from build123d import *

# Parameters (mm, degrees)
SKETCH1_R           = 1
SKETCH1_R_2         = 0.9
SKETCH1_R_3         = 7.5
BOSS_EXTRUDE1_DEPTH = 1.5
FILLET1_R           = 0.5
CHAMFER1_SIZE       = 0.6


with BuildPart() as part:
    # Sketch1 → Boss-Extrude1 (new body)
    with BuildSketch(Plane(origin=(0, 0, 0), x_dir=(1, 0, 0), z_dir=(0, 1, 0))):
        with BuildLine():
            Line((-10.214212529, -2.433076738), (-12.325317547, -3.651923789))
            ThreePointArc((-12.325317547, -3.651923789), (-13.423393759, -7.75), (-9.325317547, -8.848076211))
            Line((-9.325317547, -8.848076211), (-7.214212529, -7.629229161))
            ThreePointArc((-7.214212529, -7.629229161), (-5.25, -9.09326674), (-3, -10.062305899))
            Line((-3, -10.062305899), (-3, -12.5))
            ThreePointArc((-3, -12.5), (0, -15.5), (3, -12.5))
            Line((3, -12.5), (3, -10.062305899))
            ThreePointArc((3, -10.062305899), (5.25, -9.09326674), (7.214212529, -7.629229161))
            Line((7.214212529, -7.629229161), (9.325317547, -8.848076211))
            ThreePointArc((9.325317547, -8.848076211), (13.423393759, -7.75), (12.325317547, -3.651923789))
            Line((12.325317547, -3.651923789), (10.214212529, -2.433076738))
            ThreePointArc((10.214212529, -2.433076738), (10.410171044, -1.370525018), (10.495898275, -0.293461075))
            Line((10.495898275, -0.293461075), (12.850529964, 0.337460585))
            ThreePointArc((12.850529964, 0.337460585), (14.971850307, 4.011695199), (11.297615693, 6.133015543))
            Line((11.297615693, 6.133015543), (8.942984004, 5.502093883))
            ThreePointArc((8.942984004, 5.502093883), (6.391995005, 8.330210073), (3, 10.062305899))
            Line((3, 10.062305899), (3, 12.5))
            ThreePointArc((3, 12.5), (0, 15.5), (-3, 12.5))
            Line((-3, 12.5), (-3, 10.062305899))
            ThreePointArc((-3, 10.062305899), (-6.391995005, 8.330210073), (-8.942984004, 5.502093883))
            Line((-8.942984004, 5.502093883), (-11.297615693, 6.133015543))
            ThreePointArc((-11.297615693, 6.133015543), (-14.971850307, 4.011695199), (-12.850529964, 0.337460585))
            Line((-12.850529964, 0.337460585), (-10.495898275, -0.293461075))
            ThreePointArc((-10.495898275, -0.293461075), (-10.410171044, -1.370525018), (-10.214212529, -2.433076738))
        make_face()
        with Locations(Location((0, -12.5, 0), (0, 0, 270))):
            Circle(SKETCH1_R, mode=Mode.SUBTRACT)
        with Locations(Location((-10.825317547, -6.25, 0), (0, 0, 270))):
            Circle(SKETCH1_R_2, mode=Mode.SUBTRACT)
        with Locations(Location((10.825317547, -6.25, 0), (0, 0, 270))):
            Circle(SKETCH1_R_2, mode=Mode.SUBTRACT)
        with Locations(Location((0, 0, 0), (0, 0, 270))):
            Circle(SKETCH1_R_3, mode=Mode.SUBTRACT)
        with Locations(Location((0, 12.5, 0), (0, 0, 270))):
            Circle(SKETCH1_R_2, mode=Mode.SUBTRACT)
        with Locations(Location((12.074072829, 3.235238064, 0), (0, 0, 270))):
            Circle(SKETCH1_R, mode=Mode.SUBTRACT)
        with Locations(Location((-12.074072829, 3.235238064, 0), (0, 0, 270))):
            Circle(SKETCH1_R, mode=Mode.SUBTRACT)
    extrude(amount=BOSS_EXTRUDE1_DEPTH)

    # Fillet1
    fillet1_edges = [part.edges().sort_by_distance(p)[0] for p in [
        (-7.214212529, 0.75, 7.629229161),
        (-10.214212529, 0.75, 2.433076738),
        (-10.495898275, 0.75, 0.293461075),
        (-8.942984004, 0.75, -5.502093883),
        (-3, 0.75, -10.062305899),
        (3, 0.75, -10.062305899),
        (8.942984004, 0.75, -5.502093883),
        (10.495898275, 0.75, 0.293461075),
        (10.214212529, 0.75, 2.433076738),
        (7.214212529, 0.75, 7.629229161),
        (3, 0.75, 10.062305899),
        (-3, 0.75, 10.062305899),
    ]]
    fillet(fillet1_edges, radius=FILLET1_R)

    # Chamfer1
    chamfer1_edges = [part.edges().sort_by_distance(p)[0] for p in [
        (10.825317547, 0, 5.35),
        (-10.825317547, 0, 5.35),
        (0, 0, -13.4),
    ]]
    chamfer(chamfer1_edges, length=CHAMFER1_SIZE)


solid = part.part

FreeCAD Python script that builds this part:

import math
import FreeCAD as App
import Part
import Sketcher

V = App.Vector
Q = App.Units.Quantity


def edges_at(feature, points):
    """Names of the edges that pass closest to the given points."""
    edges = feature.Shape.Edges
    near = lambda p: min(range(len(edges)), key=lambda i: edges[i].distToShape(Part.Vertex(*p))[0])
    return sorted({f"Edge{near(p) + 1}" for p in points})

doc = App.newDocument("Part")
params = doc.addObject("Spreadsheet::Sheet", "Params")
for row, (alias, value) in enumerate([
    ("sketch1_diameter", "2 mm"),
    ("sketch1_diameter2", "15 mm"),
    ("sketch1_radius", "3 mm"),
    ("sketch1_diameter3", "1.8 mm"),
    ("sketch1_radius2", "10.5 mm"),
    ("pad1_length", "1.5 mm"),
    ("fillet_radius", "0.5 mm"),
    ("chamfer_size", "0.6 mm"),
], start=1):
    params.set(f"A{row}", alias)
    params.set(f"B{row}", "=" + value)
    params.setAlias(f"B{row}", alias)

body = doc.addObject("PartDesign::Body", "Body")

# Sketch on XZ plane
sketch1 = body.newObject("Sketcher::SketchObject", "Sketch")
sketch1.AttachmentSupport = (doc.getObject("XZ_Plane"), [""])
sketch1.MapMode = "FlatFace"
sketch1.addGeometry([
    Part.LineSegment(V(-10.214213, 2.433077, 0), V(-12.325318, 3.651924, 0)),  # 0
    Part.ArcOfCircle(Part.Circle(V(-10.825318, 6.25, 0), V(0, 0, 1), 3), math.radians(60), math.radians(240)),  # 1
    Part.LineSegment(V(-9.325318, 8.848076, 0), V(-7.214213, 7.629229, 0)),  # 2
    Part.ArcOfCircle(Part.Circle(V(0, 0, 0), V(0, 0, 1), 10.5), math.radians(106.60155), math.radians(133.39845)),  # 3
    Part.LineSegment(V(-3, 10.062306, 0), V(-3, 12.5, 0)),  # 4
    Part.ArcOfCircle(Part.Circle(V(0, 12.5, 0), V(0, 0, 1), 3), math.radians(0), math.radians(180)),  # 5
    Part.LineSegment(V(3, 12.5, 0), V(3, 10.062306, 0)),  # 6
    Part.ArcOfCircle(Part.Circle(V(0, 0, 0), V(0, 0, 1), 10.5), math.radians(46.60155), math.radians(73.39845)),  # 7
    Part.LineSegment(V(7.214213, 7.629229, 0), V(9.325318, 8.848076, 0)),  # 8
    Part.ArcOfCircle(Part.Circle(V(10.825318, 6.25, 0), V(0, 0, 1), 3), math.radians(-60), math.radians(120)),  # 9
    Part.LineSegment(V(12.325318, 3.651924, 0), V(10.214213, 2.433077, 0)),  # 10
    Part.ArcOfCircle(Part.Circle(V(0, 0, 0), V(0, 0, 1), 10.5), math.radians(1.60155), math.radians(13.39845)),  # 11
    Part.LineSegment(V(10.495898, 0.293461, 0), V(12.85053, -0.337461, 0)),  # 12
    Part.ArcOfCircle(Part.Circle(V(12.074073, -3.235238, 0), V(0, 0, 1), 3), math.radians(-105), math.radians(75)),  # 13
    Part.LineSegment(V(11.297616, -6.133016, 0), V(8.942984, -5.502094, 0)),  # 14
    Part.ArcOfCircle(Part.Circle(V(0, 0, 0), V(0, 0, 1), 10.5), math.radians(-73.39845), math.radians(-31.60155)),  # 15
    Part.LineSegment(V(3, -10.062306, 0), V(3, -12.5, 0)),  # 16
    Part.ArcOfCircle(Part.Circle(V(0, -12.5, 0), V(0, 0, 1), 3), math.radians(180), math.radians(360)),  # 17
    Part.LineSegment(V(-3, -12.5, 0), V(-3, -10.062306, 0)),  # 18
    Part.ArcOfCircle(Part.Circle(V(0, 0, 0), V(0, 0, 1), 10.5), math.radians(-148.39845), math.radians(-106.60155)),  # 19
    Part.LineSegment(V(-8.942984, -5.502094, 0), V(-11.297616, -6.133016, 0)),  # 20
    Part.ArcOfCircle(Part.Circle(V(-12.074073, -3.235238, 0), V(0, 0, 1), 3), math.radians(105), math.radians(285)),  # 21
    Part.LineSegment(V(-12.85053, -0.337461, 0), V(-10.495898, 0.293461, 0)),  # 22
    Part.ArcOfCircle(Part.Circle(V(0, 0, 0), V(0, 0, 1), 10.5), math.radians(166.60155), math.radians(178.39845)),  # 23
    Part.Circle(V(-10.825318, 6.25, 0), V(0, 0, 1), 0.9),  # 24
    Part.Circle(V(0, 12.5, 0), V(0, 0, 1), 1),  # 25
    Part.Circle(V(10.825318, 6.25, 0), V(0, 0, 1), 0.9),  # 26
    Part.Circle(V(-12.074073, -3.235238, 0), V(0, 0, 1), 1),  # 27
    Part.Circle(V(0, 0, 0), V(0, 0, 1), 7.5),  # 28
    Part.Circle(V(12.074073, -3.235238, 0), V(0, 0, 1), 1),  # 29
    Part.Circle(V(0, -12.5, 0), V(0, 0, 1), 0.9),  # 30
], False)
sketch1.addConstraint([
    Sketcher.Constraint("Tangent", 0, 2, 1, 2),
    Sketcher.Constraint("Tangent", 1, 1, 2, 1),
    Sketcher.Constraint("Coincident", 2, 2, 3, 2),
    Sketcher.Constraint("Coincident", 3, 1, 4, 1),
    Sketcher.Constraint("Tangent", 4, 2, 5, 2),
    Sketcher.Constraint("Tangent", 5, 1, 6, 1),
    Sketcher.Constraint("Coincident", 6, 2, 7, 2),
    Sketcher.Constraint("Coincident", 7, 1, 8, 1),
    Sketcher.Constraint("Tangent", 8, 2, 9, 2),
    Sketcher.Constraint("Tangent", 9, 1, 10, 1),
    Sketcher.Constraint("Coincident", 10, 2, 11, 2),
    Sketcher.Constraint("Coincident", 11, 1, 12, 1),
    Sketcher.Constraint("Tangent", 12, 2, 13, 2),
    Sketcher.Constraint("Tangent", 13, 1, 14, 1),
    Sketcher.Constraint("Coincident", 14, 2, 15, 2),
    Sketcher.Constraint("Coincident", 15, 1, 16, 1),
    Sketcher.Constraint("Tangent", 16, 2, 17, 2),
    Sketcher.Constraint("Tangent", 17, 1, 18, 1),
    Sketcher.Constraint("Coincident", 18, 2, 19, 2),
    Sketcher.Constraint("Coincident", 19, 1, 20, 1),
    Sketcher.Constraint("Tangent", 20, 2, 21, 2),
    Sketcher.Constraint("Tangent", 21, 1, 22, 1),
    Sketcher.Constraint("Coincident", 22, 2, 23, 2),
    Sketcher.Constraint("Coincident", 23, 1, 0, 1),
    Sketcher.Constraint("Vertical", 4),
    Sketcher.Constraint("Vertical", 6),
    Sketcher.Constraint("Vertical", 16),
    Sketcher.Constraint("Vertical", 18),
    Sketcher.Constraint("Coincident", 3, 3, -1, 1),
    Sketcher.Constraint("Coincident", 7, 3, -1, 1),
    Sketcher.Constraint("Coincident", 11, 3, -1, 1),
    Sketcher.Constraint("Coincident", 15, 3, -1, 1),
    Sketcher.Constraint("Coincident", 19, 3, -1, 1),
    Sketcher.Constraint("Coincident", 23, 3, -1, 1),
    Sketcher.Constraint("Coincident", 28, 3, -1, 1),
    Sketcher.Constraint("Coincident", 24, 3, 1, 3),
    Sketcher.Constraint("Coincident", 25, 3, 5, 3),
    Sketcher.Constraint("Coincident", 26, 3, 9, 3),
    Sketcher.Constraint("Coincident", 27, 3, 21, 3),
    Sketcher.Constraint("Coincident", 29, 3, 13, 3),
    Sketcher.Constraint("Coincident", 30, 3, 17, 3),
    Sketcher.Constraint("Equal", 1, 5),
    Sketcher.Constraint("Equal", 3, 7),
    Sketcher.Constraint("Equal", 5, 9),
    Sketcher.Constraint("Equal", 7, 11),
    Sketcher.Constraint("Equal", 9, 13),
    Sketcher.Constraint("Equal", 11, 15),
    Sketcher.Constraint("Equal", 13, 17),
    Sketcher.Constraint("Equal", 15, 19),
    Sketcher.Constraint("Equal", 17, 21),
    Sketcher.Constraint("Equal", 19, 23),
    Sketcher.Constraint("Equal", 24, 26),
    Sketcher.Constraint("Equal", 25, 27),
    Sketcher.Constraint("Equal", 27, 29),
    Sketcher.Constraint("Equal", 26, 30),
    Sketcher.Constraint("Symmetric", 5, 3, 17, 3, -1, 1),
    Sketcher.Constraint("Symmetric", 1, 3, 9, 3, -2),
    Sketcher.Constraint("Symmetric", 13, 3, 21, 3, -2),
    Sketcher.Constraint("PointOnObject", 5, 3, -2),
    Sketcher.Constraint("Parallel", 0, 2),
    Sketcher.Constraint("Parallel", 8, 10),
    Sketcher.Constraint("Parallel", 12, 14),
    Sketcher.Constraint("Parallel", 20, 22),
    Sketcher.Constraint("Horizontal", 2, 2, 7, 1),
    Sketcher.Constraint("Horizontal", 14, 2, 19, 1),
    Sketcher.Constraint("Equal", 0, 2),
    Sketcher.Constraint("Equal", 10, 12),
    Sketcher.Constraint("Equal", 12, 14),
    Sketcher.Constraint("Diameter", 25, 2.0),
    Sketcher.Constraint("Diameter", 28, 15.0),
    Sketcher.Constraint("Radius", 1, 3.0),
    Sketcher.Constraint("Diameter", 24, 1.8),
    Sketcher.Constraint("Radius", 3, 10.5),
    Sketcher.Constraint("Angle", 0, Q("150 deg")),
    Sketcher.Constraint("Angle", 12, Q("-15 deg")),
    Sketcher.Constraint("DistanceY", -1, 1, 5, 3, 12.5),
    Sketcher.Constraint("DistanceY", -1, 1, 1, 3, 6.25),
])
sketch1.setExpression("Constraints[68]", "Params.sketch1_diameter")
sketch1.setExpression("Constraints[69]", "Params.sketch1_diameter2")
sketch1.setExpression("Constraints[70]", "Params.sketch1_radius")
sketch1.setExpression("Constraints[71]", "Params.sketch1_diameter3")
sketch1.setExpression("Constraints[72]", "Params.sketch1_radius2")
pad1 = body.newObject("PartDesign::Pad", "Pad")
pad1.Profile = sketch1
pad1.setExpression("Length", "Params.pad1_length")
pad1.Reversed = True
doc.recompute()

fillet = body.newObject("PartDesign::Fillet", "Fillet")
fillet.Base = (pad1, edges_at(pad1, [
    (-7.214, 0.75, 7.629),
    (-10.214, 0.75, 2.433),
    (-10.496, 0.75, 0.293),
    (-8.943, 0.75, -5.502),
    (-3, 0.75, -10.062),
    (3, 0.75, -10.062),
    (8.943, 0.75, -5.502),
    (10.496, 0.75, 0.293),
    (10.214, 0.75, 2.433),
    (7.214, 0.75, 7.629),
    (3, 0.75, 10.062),
    (-3, 0.75, 10.062),
]))
fillet.setExpression("Radius", "Params.fillet_radius")
doc.recompute()

chamfer = body.newObject("PartDesign::Chamfer", "Chamfer")
chamfer.Base = (fillet, edges_at(fillet, [(10.825, 0, 5.35), (-10.825, 0, 5.35), (0, 0, -13.4)]))
chamfer.setExpression("Size", "Params.chamfer_size")

doc.recompute()
